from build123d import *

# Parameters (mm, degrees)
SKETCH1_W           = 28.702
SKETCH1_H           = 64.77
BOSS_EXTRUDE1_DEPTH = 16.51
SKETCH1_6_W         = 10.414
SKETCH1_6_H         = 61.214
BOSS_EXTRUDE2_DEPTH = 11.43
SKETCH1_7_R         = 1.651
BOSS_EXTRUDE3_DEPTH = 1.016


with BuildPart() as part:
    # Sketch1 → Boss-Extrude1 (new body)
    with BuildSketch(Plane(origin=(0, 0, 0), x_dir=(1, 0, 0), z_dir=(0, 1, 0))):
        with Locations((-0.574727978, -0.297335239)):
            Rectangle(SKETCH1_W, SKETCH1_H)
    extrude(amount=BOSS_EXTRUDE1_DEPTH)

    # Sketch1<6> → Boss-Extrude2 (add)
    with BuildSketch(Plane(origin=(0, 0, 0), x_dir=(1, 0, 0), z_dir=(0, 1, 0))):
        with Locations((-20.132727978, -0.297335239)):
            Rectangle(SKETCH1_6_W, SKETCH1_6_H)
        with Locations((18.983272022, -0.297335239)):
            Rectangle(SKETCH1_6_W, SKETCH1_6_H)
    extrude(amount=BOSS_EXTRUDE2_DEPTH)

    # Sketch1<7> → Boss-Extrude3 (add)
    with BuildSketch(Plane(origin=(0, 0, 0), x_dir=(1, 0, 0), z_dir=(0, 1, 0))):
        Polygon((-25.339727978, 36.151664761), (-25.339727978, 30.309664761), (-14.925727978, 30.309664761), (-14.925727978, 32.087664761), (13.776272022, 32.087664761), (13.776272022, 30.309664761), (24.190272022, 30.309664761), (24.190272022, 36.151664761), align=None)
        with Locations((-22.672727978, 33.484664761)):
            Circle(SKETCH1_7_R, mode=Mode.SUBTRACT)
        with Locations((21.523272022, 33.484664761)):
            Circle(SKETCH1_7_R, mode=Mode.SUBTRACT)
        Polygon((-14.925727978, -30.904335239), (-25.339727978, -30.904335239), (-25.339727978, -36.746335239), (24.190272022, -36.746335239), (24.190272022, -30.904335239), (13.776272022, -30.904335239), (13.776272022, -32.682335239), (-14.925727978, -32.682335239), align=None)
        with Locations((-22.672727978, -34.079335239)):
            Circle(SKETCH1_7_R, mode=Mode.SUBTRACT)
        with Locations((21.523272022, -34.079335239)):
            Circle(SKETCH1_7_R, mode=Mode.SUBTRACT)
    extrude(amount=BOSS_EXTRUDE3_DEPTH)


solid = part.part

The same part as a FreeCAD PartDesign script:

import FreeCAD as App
import Part
import Sketcher
from FreeCAD import Vector
Q = App.Units.Quantity

doc = App.newDocument("Part")
body = doc.addObject("PartDesign::Body", "Body")

# Sketch on XZ plane
sketch1 = body.newObject("Sketcher::SketchObject", "Sketch")
sketch1.AttachmentSupport = (doc.getObject("XZ_Plane"), [""])
sketch1.MapMode = "FlatFace"
sketch1.addGeometry([
    Part.LineSegment(Vector(-15, -32, 0), Vector(-15, 33, 0)),
    Part.LineSegment(Vector(-15, 33, 0), Vector(14, 33, 0)),
    Part.LineSegment(Vector(14, 33, 0), Vector(14, -32, 0)),
    Part.LineSegment(Vector(14, -32, 0), Vector(-15, -32, 0)),
], False)
sketch1.addConstraint([
    Sketcher.Constraint("Coincident", 0, 2, 1, 1),
    Sketcher.Constraint("Coincident", 1, 2, 2, 1),
    Sketcher.Constraint("Coincident", 2, 2, 3, 1),
    Sketcher.Constraint("Coincident", 3, 2, 0, 1),
    Sketcher.Constraint("Vertical", 0),
    Sketcher.Constraint("Horizontal", 1),
    Sketcher.Constraint("Vertical", 2),
    Sketcher.Constraint("Horizontal", 3),
    Sketcher.Constraint("DistanceX", 1, 1, 1, 2, Q("1.13 in")),
    Sketcher.Constraint("DistanceY", 0, 1, 0, 2, Q("2.55 in")),
    Sketcher.Constraint("DistanceX", 0, 2, -1, 1, Q("14.925728 mm")),
    Sketcher.Constraint("DistanceY", -1, 1, 0, 2, Q("32.682335 mm")),
])
pad1 = body.newObject("PartDesign::Pad", "Pad")
pad1.Profile = sketch1
pad1.Length = Q("0.65 in")
pad1.Reversed = True

# Sketch on XZ plane
sketch2 = body.newObject("Sketcher::SketchObject", "Sketch001")
sketch2.AttachmentSupport = (doc.getObject("XZ_Plane"), [""])
sketch2.MapMode = "FlatFace"
sketch2.addGeometry([
    Part.LineSegment(Vector(-25, -30, 0), Vector(-25, 31, 0)),  # 0
    Part.LineSegment(Vector(-25, 31, 0), Vector(-15, 31, 0)),  # 1
    Part.LineSegment(Vector(-15, 31, 0), Vector(-15, -30, 0)),  # 2
    Part.LineSegment(Vector(-15, -30, 0), Vector(-25, -30, 0)),  # 3
    Part.LineSegment(Vector(14, -30, 0), Vector(14, 31, 0)),  # 4
    Part.LineSegment(Vector(14, 31, 0), Vector(24, 31, 0)),  # 5
    Part.LineSegment(Vector(24, 31, 0), Vector(24, -30, 0)),  # 6
    Part.LineSegment(Vector(24, -30, 0), Vector(14, -30, 0)),  # 7
], False)
sketch2.addConstraint([
    Sketcher.Constraint("Coincident", 0, 2, 1, 1),
    Sketcher.Constraint("Coincident", 1, 2, 2, 1),
    Sketcher.Constraint("Coincident", 2, 2, 3, 1),
    Sketcher.Constraint("Coincident", 3, 2, 0, 1),
    Sketcher.Constraint("Coincident", 4, 2, 5, 1),
    Sketcher.Constraint("Coincident", 5, 2, 6, 1),
    Sketcher.Constraint("Coincident", 6, 2, 7, 1),
    Sketcher.Constraint("Coincident", 7, 2, 4, 1),
    Sketcher.Constraint("Vertical", 0),
    Sketcher.Constraint("Horizontal", 1),
    Sketcher.Constraint("Vertical", 2),
    Sketcher.Constraint("Horizontal", 3),
    Sketcher.Constraint("Vertical", 4),
    Sketcher.Constraint("Horizontal", 5),
    Sketcher.Constraint("Vertical", 6),
    Sketcher.Constraint("Horizontal", 7),
    Sketcher.Constraint("Horizontal", 1, 2, 4, 2),
    Sketcher.Constraint("Horizontal", 3, 2, 6, 2),
    Sketcher.Constraint("Equal", 3, 5),
    Sketcher.Constraint("DistanceX", 1, 1, 1, 2, Q("0.41 in")),
    Sketcher.Constraint("DistanceY", 0, 1, 0, 2, Q("2.41 in")),
    Sketcher.Constraint("DistanceX", 1, 2, 4, 2, Q("1.13 in")),
    Sketcher.Constraint("DistanceX", 0, 2, -1, 1, Q("25.339728 mm")),
    Sketcher.Constraint("DistanceY", -1, 1, 0, 2, Q("30.904335 mm")),
])
pad2 = body.newObject("PartDesign::Pad", "Pad001")
pad2.Profile = sketch2
pad2.Length = Q("0.45 in")
pad2.Reversed = True

# Sketch on XZ plane
sketch3 = body.newObject("Sketcher::SketchObject", "Sketch002")
sketch3.AttachmentSupport = (doc.getObject("XZ_Plane"), [""])
sketch3.MapMode = "FlatFace"
sketch3.addGeometry([
    Part.LineSegment(Vector(-25.3, -36.2, 0), Vector(-25.3, -30.3, 0)),  # 0
    Part.LineSegment(Vector(-25.3, -30.3, 0), Vector(-14.9, -30.3, 0)),  # 1
    Part.LineSegment(Vector(-14.9, -30.3, 0), Vector(-14.9, -32.1, 0)),  # 2
    Part.LineSegment(Vector(-14.9, -32.1, 0), Vector(13.8, -32.1, 0)),  # 3
    Part.LineSegment(Vector(13.8, -32.1, 0), Vector(13.8, -30.3, 0)),  # 4
    Part.LineSegment(Vector(13.8, -30.3, 0), Vector(24.2, -30.3, 0)),  # 5
    Part.LineSegment(Vector(24.2, -30.3, 0), Vector(24.2, -36.2, 0)),  # 6
    Part.LineSegment(Vector(24.2, -36.2, 0), Vector(-25.3, -36.2, 0)),  # 7
    Part.Circle(Vector(-22.7, -33.5, 0), Vector(0, 0, 1), 1.7),  # 8
    Part.Circle(Vector(21.5, -33.5, 0), Vector(0, 0, 1), 1.7),  # 9
    Part.LineSegment(Vector(-14.9, 30.9, 0), Vector(-25.3, 30.9, 0)),  # 10
    Part.LineSegment(Vector(-25.3, 30.9, 0), Vector(-25.3, 36.7, 0)),  # 11
    Part.LineSegment(Vector(-25.3, 36.7, 0), Vector(24.2, 36.7, 0)),  # 12
    Part.LineSegment(Vector(24.2, 36.7, 0), Vector(24.2, 30.9, 0)),  # 13
    Part.LineSegment(Vector(24.2, 30.9, 0), Vector(13.8, 30.9, 0)),  # 14
    Part.LineSegment(Vector(13.8, 30.9, 0), Vector(13.8, 32.7, 0)),  # 15
    Part.LineSegment(Vector(13.8, 32.7, 0), Vector(-14.9, 32.7, 0)),  # 16
    Part.LineSegment(Vector(-14.9, 32.7, 0), Vector(-14.9, 30.9, 0)),  # 17
    Part.Circle(Vector(-22.7, 34.1, 0), Vector(0, 0, 1), 1.7),  # 18
    Part.Circle(Vector(21.5, 34.1, 0), Vector(0, 0, 1), 1.7),  # 19
], False)
sketch3.addConstraint([
    Sketcher.Constraint("Coincident", 0, 2, 1, 1),
    Sketcher.Constraint("Coincident", 1, 2, 2, 1),
    Sketcher.Constraint("Coincident", 2, 2, 3, 1),
    Sketcher.Constraint("Coincident", 3, 2, 4, 1),
    Sketcher.Constraint("Coincident", 4, 2, 5, 1),
    Sketcher.Constraint("Coincident", 5, 2, 6, 1),
    Sketcher.Constraint("Coincident", 6, 2, 7, 1),
    Sketcher.Constraint("Coincident", 7, 2, 0, 1),
    Sketcher.Constraint("Coincident", 10, 2, 11, 1),
    Sketcher.Constraint("Coincident", 11, 2, 12, 1),
    Sketcher.Constraint("Coincident", 12, 2, 13, 1),
    Sketcher.Constraint("Coincident", 13, 2, 14, 1),
    Sketcher.Constraint("Coincident", 14, 2, 15, 1),
    Sketcher.Constraint("Coincident", 15, 2, 16, 1),
    Sketcher.Constraint("Coincident", 16, 2, 17, 1),
    Sketcher.Constraint("Coincident", 17, 2, 10, 1),
    Sketcher.Constraint("Vertical", 0),
    Sketcher.Constraint("Horizontal", 1),
    Sketcher.Constraint("Vertical", 2),
    Sketcher.Constraint("Horizontal", 3),
    Sketcher.Constraint("Vertical", 4),
    Sketcher.Constraint("Horizontal", 5),
    Sketcher.Constraint("Vertical", 6),
    Sketcher.Constraint("Horizontal", 7),
    Sketcher.Constraint("Horizontal", 10),
    Sketcher.Constraint("Vertical", 11),
    Sketcher.Constraint("Horizontal", 12),
    Sketcher.Constraint("Vertical", 13),
    Sketcher.Constraint("Horizontal", 14),
    Sketcher.Constraint("Vertical", 15),
    Sketcher.Constraint("Horizontal", 16),
    Sketcher.Constraint("Vertical", 17),
    Sketcher.Constraint("Equal", 8, 9),
    Sketcher.Constraint("Equal", 9, 18),
    Sketcher.Constraint("Equal", 18, 19),
    Sketcher.Constraint("Horizontal", 8, 3, 9, 3),
    Sketcher.Constraint("Horizontal", 18, 3, 19, 3),
    Sketcher.Constraint("Horizontal", 1, 2, 4, 2),
    Sketcher.Constraint("Horizontal", 10, 2, 13, 2),
    Sketcher.Constraint("Vertical", 8, 3, 18, 3),
    Sketcher.Constraint("Vertical", 9, 3, 19, 3),
    Sketcher.Constraint("Vertical", 7, 2, 10, 2),
    Sketcher.Constraint("Vertical", 6, 2, 12, 2),
    Sketcher.Constraint("Vertical", 4, 2, 14, 2),
    Sketcher.Constraint("Vertical", 2, 2, 16, 2),
    Sketcher.Constraint("Equal", 1, 5),
    Sketcher.Constraint("Equal", 6, 11),
    Sketcher.Constraint("Equal", 4, 15),
    Sketcher.Constraint("Diameter", 8, Q("0.13 in")),
    Sketcher.Constraint("DistanceX", 1, 1, 1, 2, Q("0.41 in")),
    Sketcher.Constraint("DistanceX", 3, 1, 3, 2, Q("1.13 in")),
    Sketcher.Constraint("DistanceY", 0, 1, 0, 2, Q("0.23 in")),
    Sketcher.Constraint("DistanceY", 2, 2, 2, 1, Q("0.07 in")),
    Sketcher.Constraint("DistanceX", 8, 3, 9, 3, Q("1.74 in")),
    Sketcher.Constraint("DistanceY", 8, 3, 18, 3, Q("2.66 in")),
    Sketcher.Constraint("DistanceY", 0, 2, 10, 2, Q("2.41 in")),
    Sketcher.Constraint("DistanceX", 0, 2, 8, 3, Q("0.105 in")),
    Sketcher.Constraint("DistanceY", 8, 3, 0, 2, Q("0.125 in")),
    Sketcher.Constraint("DistanceX", 8, 3, -1, 1, Q("22.672728 mm")),
    Sketcher.Constraint("DistanceY", 8, 3, -1, 1, Q("33.484665 mm")),
])
pad3 = body.newObject("PartDesign::Pad", "Pad002")
pad3.Profile = sketch3
pad3.Length = Q("0.04 in")
pad3.Reversed = True

doc.recompute()
